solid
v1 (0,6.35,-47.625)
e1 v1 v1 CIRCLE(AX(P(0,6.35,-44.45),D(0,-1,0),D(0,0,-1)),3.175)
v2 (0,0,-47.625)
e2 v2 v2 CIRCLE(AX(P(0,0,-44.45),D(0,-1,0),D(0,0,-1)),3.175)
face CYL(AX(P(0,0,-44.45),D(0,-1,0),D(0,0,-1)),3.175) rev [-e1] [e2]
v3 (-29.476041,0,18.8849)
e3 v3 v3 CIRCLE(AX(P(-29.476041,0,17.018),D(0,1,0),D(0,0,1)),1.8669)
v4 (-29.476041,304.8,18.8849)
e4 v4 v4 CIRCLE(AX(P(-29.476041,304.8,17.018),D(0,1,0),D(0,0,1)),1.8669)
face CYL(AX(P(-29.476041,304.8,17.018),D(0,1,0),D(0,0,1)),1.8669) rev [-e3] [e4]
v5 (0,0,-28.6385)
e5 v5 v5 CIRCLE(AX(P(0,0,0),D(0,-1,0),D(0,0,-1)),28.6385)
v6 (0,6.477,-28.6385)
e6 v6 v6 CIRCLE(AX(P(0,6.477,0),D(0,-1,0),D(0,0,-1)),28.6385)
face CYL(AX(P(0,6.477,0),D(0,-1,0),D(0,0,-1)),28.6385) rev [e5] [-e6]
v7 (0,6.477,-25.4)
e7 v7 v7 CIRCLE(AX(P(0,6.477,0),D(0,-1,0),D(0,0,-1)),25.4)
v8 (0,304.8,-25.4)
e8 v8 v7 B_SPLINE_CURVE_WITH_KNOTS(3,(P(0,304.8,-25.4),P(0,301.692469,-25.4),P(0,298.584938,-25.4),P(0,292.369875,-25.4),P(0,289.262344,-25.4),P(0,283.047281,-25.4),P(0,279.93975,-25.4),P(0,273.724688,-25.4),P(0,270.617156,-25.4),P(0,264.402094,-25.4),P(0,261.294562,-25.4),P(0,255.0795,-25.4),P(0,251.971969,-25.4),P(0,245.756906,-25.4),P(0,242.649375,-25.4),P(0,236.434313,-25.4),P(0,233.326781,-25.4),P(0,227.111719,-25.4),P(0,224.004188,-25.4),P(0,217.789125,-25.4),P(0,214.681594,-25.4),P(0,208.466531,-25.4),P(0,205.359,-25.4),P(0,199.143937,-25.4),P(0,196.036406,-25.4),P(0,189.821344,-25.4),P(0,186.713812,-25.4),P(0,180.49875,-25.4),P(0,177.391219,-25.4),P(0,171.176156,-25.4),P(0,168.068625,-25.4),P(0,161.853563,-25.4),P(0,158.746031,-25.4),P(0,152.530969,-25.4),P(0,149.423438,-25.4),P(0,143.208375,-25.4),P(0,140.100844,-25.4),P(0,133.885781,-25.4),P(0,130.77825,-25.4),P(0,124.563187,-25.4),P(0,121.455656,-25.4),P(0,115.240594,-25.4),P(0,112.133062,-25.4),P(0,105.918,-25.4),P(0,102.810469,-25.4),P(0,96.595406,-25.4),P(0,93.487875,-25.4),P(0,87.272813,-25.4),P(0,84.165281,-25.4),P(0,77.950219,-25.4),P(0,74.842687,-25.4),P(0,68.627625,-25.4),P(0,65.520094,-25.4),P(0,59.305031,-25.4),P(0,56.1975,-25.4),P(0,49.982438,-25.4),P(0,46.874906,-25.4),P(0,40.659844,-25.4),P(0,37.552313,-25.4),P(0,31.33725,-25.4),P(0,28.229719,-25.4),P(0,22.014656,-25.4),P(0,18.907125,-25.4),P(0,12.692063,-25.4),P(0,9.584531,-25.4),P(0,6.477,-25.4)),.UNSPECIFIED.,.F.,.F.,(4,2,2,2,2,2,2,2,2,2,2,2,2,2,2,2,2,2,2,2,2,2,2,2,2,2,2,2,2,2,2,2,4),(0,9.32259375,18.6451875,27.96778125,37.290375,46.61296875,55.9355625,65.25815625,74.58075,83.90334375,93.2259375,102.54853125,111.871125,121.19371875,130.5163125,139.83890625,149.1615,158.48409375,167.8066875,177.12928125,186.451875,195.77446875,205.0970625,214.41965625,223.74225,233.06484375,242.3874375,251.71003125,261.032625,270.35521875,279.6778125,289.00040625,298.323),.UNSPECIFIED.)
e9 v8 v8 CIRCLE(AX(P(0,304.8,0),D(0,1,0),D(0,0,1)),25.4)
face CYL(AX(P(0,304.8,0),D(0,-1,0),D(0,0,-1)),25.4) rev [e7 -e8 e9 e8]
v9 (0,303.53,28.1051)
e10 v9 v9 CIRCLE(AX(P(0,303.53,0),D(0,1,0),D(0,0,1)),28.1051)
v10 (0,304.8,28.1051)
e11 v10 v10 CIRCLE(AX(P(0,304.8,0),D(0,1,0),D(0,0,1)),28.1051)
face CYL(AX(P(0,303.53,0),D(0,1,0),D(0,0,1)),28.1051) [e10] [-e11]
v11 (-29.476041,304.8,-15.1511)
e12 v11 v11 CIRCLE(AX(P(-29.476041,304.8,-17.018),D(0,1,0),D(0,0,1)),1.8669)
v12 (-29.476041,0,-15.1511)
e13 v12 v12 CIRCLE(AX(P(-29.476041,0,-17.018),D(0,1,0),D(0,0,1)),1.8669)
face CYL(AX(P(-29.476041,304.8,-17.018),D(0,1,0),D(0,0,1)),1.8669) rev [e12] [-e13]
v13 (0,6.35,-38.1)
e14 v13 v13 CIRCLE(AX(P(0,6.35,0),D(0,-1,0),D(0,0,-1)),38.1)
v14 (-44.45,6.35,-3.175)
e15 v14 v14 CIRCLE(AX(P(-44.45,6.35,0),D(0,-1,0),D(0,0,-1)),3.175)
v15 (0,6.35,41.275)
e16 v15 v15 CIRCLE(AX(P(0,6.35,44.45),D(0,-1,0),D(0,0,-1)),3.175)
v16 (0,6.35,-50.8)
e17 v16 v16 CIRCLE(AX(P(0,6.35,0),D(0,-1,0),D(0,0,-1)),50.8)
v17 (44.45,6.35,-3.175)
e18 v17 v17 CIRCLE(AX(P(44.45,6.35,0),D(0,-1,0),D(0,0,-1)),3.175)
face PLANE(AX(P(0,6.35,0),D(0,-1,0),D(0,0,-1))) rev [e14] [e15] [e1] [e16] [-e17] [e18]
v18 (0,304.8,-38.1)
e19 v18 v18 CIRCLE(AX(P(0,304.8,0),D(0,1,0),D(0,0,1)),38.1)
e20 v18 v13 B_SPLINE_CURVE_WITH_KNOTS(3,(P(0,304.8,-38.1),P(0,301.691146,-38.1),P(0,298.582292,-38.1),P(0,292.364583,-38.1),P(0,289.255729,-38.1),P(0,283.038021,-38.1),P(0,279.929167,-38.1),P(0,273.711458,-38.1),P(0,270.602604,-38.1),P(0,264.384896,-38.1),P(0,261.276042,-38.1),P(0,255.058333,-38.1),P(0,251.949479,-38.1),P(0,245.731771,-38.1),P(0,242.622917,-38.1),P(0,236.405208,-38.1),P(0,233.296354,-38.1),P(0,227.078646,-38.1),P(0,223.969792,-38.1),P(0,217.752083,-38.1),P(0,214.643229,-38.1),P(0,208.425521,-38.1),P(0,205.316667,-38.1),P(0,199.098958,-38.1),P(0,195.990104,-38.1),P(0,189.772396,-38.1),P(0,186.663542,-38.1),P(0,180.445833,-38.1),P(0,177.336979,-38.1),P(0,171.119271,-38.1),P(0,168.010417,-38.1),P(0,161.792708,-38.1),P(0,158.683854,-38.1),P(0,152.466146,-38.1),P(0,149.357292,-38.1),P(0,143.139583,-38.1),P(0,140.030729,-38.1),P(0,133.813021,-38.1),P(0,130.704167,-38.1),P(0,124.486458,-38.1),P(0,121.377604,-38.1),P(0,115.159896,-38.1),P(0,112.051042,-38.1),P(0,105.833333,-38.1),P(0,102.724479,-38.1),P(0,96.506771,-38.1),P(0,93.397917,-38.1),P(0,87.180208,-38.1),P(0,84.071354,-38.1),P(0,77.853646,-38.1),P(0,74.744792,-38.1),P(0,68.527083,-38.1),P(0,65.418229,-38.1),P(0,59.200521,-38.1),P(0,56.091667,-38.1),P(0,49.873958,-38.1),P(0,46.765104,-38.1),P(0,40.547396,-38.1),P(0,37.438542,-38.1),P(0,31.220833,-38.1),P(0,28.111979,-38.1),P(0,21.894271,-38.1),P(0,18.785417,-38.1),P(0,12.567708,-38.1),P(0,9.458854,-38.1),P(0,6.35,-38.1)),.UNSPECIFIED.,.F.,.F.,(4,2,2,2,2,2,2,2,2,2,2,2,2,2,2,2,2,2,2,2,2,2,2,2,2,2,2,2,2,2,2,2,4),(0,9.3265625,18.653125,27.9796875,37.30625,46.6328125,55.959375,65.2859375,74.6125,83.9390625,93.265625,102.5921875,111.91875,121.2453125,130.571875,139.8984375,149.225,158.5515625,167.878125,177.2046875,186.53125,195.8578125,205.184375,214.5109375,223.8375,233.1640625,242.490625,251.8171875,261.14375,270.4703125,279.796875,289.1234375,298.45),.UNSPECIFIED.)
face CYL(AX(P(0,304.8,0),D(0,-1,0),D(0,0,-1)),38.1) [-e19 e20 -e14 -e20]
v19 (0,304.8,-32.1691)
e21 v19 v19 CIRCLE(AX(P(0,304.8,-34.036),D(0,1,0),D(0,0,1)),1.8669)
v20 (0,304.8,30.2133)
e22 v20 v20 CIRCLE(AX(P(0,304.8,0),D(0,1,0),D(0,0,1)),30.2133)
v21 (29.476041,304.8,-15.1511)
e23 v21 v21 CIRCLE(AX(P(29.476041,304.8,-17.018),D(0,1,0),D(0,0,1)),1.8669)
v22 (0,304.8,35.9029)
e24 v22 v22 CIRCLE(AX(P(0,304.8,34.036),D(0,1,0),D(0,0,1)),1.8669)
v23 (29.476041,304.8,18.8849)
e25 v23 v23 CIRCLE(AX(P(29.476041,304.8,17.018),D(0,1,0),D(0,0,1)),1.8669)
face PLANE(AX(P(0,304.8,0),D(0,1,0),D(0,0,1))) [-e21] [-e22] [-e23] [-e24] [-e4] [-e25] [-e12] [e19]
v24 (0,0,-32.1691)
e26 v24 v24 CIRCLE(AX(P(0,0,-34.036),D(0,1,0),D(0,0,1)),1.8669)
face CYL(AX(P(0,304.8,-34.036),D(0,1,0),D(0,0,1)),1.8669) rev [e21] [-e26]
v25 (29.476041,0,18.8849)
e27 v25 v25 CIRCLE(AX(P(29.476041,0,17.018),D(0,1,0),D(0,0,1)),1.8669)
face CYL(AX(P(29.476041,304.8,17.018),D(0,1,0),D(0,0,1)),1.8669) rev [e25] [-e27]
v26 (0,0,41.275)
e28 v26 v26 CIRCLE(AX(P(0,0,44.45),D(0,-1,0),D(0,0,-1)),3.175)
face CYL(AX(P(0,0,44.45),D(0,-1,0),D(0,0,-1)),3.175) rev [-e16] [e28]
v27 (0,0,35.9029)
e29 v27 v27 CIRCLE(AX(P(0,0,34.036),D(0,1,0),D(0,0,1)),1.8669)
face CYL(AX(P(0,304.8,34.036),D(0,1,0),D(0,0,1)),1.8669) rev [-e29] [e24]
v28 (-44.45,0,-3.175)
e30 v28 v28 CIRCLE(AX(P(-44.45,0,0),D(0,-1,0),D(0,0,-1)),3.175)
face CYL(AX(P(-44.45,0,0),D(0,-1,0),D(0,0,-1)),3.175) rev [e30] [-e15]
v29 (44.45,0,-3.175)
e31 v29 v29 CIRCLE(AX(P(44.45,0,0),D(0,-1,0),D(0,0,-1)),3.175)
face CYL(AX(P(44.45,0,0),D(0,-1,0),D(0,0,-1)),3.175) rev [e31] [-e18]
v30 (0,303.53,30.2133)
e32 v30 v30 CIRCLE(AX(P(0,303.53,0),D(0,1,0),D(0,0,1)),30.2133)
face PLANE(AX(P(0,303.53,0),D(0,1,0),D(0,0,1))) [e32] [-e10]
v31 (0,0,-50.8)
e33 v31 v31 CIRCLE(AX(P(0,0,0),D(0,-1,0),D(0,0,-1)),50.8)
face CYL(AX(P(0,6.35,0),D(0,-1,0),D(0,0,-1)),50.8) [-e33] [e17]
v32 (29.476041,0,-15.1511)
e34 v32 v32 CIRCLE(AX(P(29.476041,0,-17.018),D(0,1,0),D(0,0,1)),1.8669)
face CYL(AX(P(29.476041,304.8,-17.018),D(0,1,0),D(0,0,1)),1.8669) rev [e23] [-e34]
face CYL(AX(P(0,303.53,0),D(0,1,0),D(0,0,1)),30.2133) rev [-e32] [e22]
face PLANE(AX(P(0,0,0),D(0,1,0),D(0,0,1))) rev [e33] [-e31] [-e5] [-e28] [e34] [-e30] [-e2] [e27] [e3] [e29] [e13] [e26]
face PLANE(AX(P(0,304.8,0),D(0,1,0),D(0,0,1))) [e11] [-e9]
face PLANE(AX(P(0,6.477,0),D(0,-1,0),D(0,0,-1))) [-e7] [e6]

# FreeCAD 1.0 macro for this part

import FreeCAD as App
import Part
import Sketcher

V = App.Vector
Q = App.Units.Quantity

doc = App.newDocument("Part")
body = doc.addObject("PartDesign::Body", "Body")

# Sketch on XZ plane
sketch1 = body.newObject("Sketcher::SketchObject", "Sketch")
sketch1.AttachmentSupport = (doc.getObject("XZ_Plane"), [""])
sketch1.MapMode = "FlatFace"
sketch1.addGeometry([
    Part.Circle(V(0, 0, 0), V(0, 0, 1), 38),
    Part.Circle(V(0, 0, 0), V(0, 0, 1), 25),
], False)
sketch1.addConstraint([
    Sketcher.Constraint("Coincident", 0, 3, -1, 1),
    Sketcher.Constraint("Coincident", 1, 3, -1, 1),
    Sketcher.Constraint("Diameter", 0, Q("3 in")),
    Sketcher.Constraint("Diameter", 1, Q("2 in")),
])
pad1 = body.newObject("PartDesign::Pad", "Pad")
pad1.Profile = sketch1
pad1.Length = Q("12 in")
pad1.Reversed = True

# Sketch on XZ plane
sketch2 = body.newObject("Sketcher::SketchObject", "Sketch001")
sketch2.AttachmentSupport = (doc.getObject("XZ_Plane"), [""])
sketch2.MapMode = "FlatFace"
sketch2.addGeometry([
    Part.Circle(V(0, 0, 0), V(0, 0, 1), 51),
    Part.Circle(V(0, 0, 0), V(0, 0, 1), 38),
], False)
sketch2.addConstraint([
    Sketcher.Constraint("Coincident", 0, 3, -1, 1),
    Sketcher.Constraint("Coincident", 1, 3, -1, 1),
    Sketcher.Constraint("Diameter", 0, Q("4 in")),
    Sketcher.Constraint("Diameter", 1, Q("3 in")),
])
pad2 = body.newObject("PartDesign::Pad", "Pad001")
pad2.Profile = sketch2
pad2.Length = Q("0.25 in")
pad2.Reversed = True

# Sketch on XZ plane
sketch3 = body.newObject("Sketcher::SketchObject", "Sketch002")
sketch3.AttachmentSupport = (doc.getObject("XZ_Plane"), [""])
sketch3.MapMode = "FlatFace"
sketch3.addGeometry([
    Part.Circle(V(0, 44.5, 0), V(0, 0, 1), 3.2),
    Part.Circle(V(44.5, 0, 0), V(0, 0, 1), 3.2),
    Part.Circle(V(0, -44.5, 0), V(0, 0, 1), 3.2),
    Part.Circle(V(-44.5, 0, 0), V(0, 0, 1), 3.2),
], False)
sketch3.addConstraint([
    Sketcher.Constraint("Equal", 0, 1),
    Sketcher.Constraint("Equal", 1, 2),
    Sketcher.Constraint("Equal", 2, 3),
    Sketcher.Constraint("Symmetric", 0, 3, 2, 3, -1, 1),
    Sketcher.Constraint("Symmetric", 1, 3, 3, 3, -1, 1),
    Sketcher.Constraint("PointOnObject", 0, 3, -2),
    Sketcher.Constraint("PointOnObject", 1, 3, -1),
    Sketcher.Constraint("Diameter", 0, Q("0.25 in")),
    Sketcher.Constraint("DistanceY", 2, 3, 0, 3, Q("3.5 in")),
    Sketcher.Constraint("DistanceX", 3, 3, 1, 3, Q("3.5 in")),
])
doc.recompute()
hole = body.newObject("PartDesign::Hole", "Hole")
hole.Profile = sketch3
hole.ThreadType = "None"
hole.Diameter = Q("0.25 in")
hole.DepthType = "ThroughAll"

# Sketch on XZ plane
sketch4 = body.newObject("Sketcher::SketchObject", "Sketch003")
sketch4.AttachmentSupport = (doc.getObject("XZ_Plane"), [""])
sketch4.MapMode = "FlatFace"
sketch4.addGeometry(Part.Circle(V(0, 0, 0), V(0, 0, 1), 29), False)
sketch4.addConstraint([
    Sketcher.Constraint("Coincident", 0, 3, -1, 1),
    Sketcher.Constraint("Diameter", 0, Q("2.255 in")),
])
pocket1 = body.newObject("PartDesign::Pocket", "Pocket")
pocket1.Profile = sketch4
pocket1.Length = Q("0.255 in")

# Sketch on XZ plane
sketch5 = body.newObject("Sketcher::SketchObject", "Sketch004")
sketch5.AttachmentSupport = (doc.getObject("XZ_Plane"), [""])
sketch5.MapMode = "FlatFace"
sketch5.AttachmentOffset = App.Placement(V(0, 0, -12 * 25.4), App.Rotation())
sketch5.addGeometry([
    Part.Circle(V(0, 0, 0), V(0, 0, 1), 30),
    Part.Circle(V(0, 0, 0), V(0, 0, 1), 28),
], False)
sketch5.addConstraint([
    Sketcher.Constraint("Coincident", 0, 3, -1, 1),
    Sketcher.Constraint("Coincident", 1, 3, -1, 1),
    Sketcher.Constraint("Diameter", 0, Q("2.379 in")),
    Sketcher.Constraint("Diameter", 1, Q("2.213 in")),
])
pocket2 = body.newObject("PartDesign::Pocket", "Pocket001")
pocket2.Profile = sketch5
pocket2.Length = Q("0.05 in")
pocket2.Reversed = True

# Sketch on XZ plane
sketch6 = body.newObject("Sketcher::SketchObject", "Sketch005")
sketch6.AttachmentSupport = (doc.getObject("XZ_Plane"), [""])
sketch6.MapMode = "FlatFace"
sketch6.AttachmentOffset = App.Placement(V(0, 0, -12 * 25.4), App.Rotation())
sketch6.addGeometry(Part.Circle(V(0, -34, 0), V(0, 0, 1), 1.9), False)
sketch6.addConstraint([
    Sketcher.Constraint("PointOnObject", 0, 3, -2),
    Sketcher.Constraint("Diameter", 0, Q("0.147 in")),
    Sketcher.Constraint("DistanceY", 0, 3, -1, 1, Q("1.34 in")),
])
doc.recompute()
hole2 = body.newObject("PartDesign::Hole", "Hole001")
hole2.Profile = sketch6
hole2.ThreadType = "None"
hole2.Diameter = Q("0.147 in")
hole2.DepthType = "ThroughAll"
hole2.Reversed = True
doc.recompute()

polarpattern = body.newObject("PartDesign::PolarPattern", "PolarPattern")
polarpattern.Originals = [hole2]
polarpattern.Axis = (doc.getObject("Y_Axis"), [""])
polarpattern.Angle = 360
polarpattern.Occurrences = 6
body.Tip = polarpattern

doc.recompute()
